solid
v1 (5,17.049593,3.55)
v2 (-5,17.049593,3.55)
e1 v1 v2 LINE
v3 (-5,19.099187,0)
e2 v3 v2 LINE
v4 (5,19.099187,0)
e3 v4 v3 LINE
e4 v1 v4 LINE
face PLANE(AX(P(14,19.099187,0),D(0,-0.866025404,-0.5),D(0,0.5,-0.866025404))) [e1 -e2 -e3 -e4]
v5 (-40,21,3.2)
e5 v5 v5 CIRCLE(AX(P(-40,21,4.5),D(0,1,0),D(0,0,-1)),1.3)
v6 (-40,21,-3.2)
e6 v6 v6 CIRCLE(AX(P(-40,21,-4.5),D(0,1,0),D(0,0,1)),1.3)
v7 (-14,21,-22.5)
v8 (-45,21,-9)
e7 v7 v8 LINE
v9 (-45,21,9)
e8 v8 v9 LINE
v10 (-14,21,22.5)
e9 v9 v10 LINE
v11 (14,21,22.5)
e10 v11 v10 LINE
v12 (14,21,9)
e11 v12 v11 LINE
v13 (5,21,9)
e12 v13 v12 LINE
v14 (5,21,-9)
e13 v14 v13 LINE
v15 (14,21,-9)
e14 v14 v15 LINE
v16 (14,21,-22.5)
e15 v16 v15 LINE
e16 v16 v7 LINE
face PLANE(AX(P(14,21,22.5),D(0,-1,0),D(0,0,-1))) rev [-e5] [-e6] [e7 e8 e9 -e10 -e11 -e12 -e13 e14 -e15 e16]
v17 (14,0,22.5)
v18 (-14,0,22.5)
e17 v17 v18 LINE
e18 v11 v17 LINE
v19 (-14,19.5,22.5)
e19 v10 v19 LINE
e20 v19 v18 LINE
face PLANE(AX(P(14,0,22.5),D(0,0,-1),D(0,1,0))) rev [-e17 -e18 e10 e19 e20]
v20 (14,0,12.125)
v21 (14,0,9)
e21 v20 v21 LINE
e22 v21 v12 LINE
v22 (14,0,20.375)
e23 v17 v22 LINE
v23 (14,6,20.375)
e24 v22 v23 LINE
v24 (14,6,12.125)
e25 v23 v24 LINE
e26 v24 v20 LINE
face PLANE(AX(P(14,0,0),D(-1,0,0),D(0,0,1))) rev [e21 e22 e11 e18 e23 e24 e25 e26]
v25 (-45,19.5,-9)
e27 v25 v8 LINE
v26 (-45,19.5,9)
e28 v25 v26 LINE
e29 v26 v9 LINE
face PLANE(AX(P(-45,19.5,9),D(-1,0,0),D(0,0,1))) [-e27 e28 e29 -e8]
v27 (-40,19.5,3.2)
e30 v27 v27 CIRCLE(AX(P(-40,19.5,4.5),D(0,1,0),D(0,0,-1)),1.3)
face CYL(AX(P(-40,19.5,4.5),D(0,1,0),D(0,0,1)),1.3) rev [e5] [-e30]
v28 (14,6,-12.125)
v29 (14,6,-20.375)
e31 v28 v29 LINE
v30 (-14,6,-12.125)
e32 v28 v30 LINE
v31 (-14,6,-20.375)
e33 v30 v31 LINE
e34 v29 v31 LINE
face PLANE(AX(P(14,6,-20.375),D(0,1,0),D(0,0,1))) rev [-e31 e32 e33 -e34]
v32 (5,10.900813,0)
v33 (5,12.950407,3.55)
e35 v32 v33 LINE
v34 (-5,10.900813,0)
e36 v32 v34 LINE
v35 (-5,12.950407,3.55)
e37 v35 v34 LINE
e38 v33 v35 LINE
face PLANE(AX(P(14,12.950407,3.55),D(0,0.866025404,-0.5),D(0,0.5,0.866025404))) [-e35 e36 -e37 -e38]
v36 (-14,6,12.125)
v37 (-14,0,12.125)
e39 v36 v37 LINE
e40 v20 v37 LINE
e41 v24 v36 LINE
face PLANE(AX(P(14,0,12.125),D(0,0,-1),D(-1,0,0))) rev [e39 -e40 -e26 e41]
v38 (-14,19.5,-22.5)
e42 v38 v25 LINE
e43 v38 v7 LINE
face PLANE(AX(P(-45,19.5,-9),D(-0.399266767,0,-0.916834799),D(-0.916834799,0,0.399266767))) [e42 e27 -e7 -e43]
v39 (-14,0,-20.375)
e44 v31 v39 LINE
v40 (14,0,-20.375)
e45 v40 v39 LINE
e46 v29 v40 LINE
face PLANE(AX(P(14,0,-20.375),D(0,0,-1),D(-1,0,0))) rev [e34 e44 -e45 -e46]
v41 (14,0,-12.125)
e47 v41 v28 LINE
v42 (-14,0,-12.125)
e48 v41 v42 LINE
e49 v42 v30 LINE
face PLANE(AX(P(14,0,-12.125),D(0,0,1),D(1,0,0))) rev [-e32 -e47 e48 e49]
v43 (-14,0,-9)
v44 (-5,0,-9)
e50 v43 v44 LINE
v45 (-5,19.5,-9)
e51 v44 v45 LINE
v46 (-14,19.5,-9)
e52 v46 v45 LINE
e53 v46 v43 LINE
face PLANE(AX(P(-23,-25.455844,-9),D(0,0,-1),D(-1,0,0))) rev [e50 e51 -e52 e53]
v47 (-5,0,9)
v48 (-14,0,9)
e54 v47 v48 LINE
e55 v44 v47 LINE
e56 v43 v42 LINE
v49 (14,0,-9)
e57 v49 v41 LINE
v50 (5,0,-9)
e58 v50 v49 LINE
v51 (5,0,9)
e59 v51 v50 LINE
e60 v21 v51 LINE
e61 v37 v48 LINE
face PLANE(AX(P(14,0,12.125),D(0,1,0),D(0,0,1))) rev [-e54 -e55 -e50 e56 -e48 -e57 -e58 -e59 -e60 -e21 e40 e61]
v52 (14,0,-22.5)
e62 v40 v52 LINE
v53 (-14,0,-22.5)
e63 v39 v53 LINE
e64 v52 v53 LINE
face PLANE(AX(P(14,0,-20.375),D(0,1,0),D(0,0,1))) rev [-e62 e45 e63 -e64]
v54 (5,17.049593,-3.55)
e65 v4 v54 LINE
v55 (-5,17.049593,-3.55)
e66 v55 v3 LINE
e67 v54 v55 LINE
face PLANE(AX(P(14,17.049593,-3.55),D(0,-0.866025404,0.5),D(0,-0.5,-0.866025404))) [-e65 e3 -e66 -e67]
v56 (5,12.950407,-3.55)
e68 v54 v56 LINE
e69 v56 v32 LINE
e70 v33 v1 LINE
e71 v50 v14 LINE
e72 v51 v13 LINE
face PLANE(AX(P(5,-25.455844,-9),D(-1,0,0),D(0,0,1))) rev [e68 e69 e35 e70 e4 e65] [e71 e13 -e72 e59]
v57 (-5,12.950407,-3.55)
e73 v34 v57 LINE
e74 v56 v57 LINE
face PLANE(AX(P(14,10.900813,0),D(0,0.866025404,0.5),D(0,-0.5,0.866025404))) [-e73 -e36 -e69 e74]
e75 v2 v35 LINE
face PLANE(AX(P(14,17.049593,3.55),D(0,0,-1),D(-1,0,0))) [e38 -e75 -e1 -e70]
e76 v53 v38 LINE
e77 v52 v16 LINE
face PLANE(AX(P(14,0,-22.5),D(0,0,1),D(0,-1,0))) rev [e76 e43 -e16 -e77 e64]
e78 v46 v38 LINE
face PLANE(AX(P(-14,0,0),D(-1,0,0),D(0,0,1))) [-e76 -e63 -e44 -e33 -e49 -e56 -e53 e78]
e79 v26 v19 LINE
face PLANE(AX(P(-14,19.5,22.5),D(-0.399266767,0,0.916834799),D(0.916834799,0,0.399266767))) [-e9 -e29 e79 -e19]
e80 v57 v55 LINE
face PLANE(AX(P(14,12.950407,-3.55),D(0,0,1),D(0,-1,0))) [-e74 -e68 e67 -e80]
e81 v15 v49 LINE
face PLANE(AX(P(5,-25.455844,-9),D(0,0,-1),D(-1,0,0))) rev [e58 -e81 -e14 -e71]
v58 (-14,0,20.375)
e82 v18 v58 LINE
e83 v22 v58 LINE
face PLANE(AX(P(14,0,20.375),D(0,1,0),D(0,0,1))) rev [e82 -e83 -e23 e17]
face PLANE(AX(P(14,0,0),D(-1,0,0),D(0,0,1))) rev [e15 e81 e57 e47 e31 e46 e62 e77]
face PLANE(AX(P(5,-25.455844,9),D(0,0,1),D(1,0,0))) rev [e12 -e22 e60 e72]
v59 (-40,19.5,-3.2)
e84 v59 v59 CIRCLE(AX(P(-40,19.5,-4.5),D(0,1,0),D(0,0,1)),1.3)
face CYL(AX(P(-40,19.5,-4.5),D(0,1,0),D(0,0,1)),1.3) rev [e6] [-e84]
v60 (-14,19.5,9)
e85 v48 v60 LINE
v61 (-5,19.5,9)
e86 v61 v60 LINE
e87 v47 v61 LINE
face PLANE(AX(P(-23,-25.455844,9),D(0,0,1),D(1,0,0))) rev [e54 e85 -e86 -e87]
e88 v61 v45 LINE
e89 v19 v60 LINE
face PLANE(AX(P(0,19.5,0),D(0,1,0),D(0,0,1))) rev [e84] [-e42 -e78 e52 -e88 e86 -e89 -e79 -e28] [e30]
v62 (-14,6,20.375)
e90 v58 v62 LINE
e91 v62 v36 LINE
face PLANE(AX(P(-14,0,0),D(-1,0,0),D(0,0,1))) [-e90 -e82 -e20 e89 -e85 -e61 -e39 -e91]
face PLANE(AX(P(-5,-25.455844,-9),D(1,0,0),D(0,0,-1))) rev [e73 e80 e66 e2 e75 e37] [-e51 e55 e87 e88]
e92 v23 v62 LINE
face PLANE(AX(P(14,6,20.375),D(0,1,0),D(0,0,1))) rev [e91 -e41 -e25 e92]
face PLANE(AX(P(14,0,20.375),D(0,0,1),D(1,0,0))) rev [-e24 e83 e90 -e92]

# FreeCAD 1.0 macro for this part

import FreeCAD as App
import Part
import Sketcher
Q = App.Units.Quantity

doc = App.newDocument("Part")
body = doc.addObject("PartDesign::Body", "Body")

# Sketch on YZ plane
sketch1 = body.newObject("Sketcher::SketchObject", "Sketch")
sketch1.AttachmentSupport = (doc.getObject("YZ_Plane"), [""])
sketch1.MapMode = "FlatFace"
sketch1.addGeometry([
    Part.LineSegment(App.Vector(21, 22.5, 0), App.Vector(0, 22.5, 0)),  # 0
    Part.LineSegment(App.Vector(0, 22.5, 0), App.Vector(0, 20.4, 0)),  # 1
    Part.LineSegment(App.Vector(0, 20.4, 0), App.Vector(6, 20.4, 0)),  # 2
    Part.LineSegment(App.Vector(6, 20.4, 0), App.Vector(6, 12.1, 0)),  # 3
    Part.LineSegment(App.Vector(6, 12.1, 0), App.Vector(0, 12.1, 0)),  # 4
    Part.LineSegment(App.Vector(0, 12.1, 0), App.Vector(0, -12.1, 0)),  # 5
    Part.LineSegment(App.Vector(0, -12.1, 0), App.Vector(6, -12.1, 0)),  # 6
    Part.LineSegment(App.Vector(6, -12.1, 0), App.Vector(6, -20.4, 0)),  # 7
    Part.LineSegment(App.Vector(6, -20.4, 0), App.Vector(0, -20.4, 0)),  # 8
    Part.LineSegment(App.Vector(0, -20.4, 0), App.Vector(0, -22.5, 0)),  # 9
    Part.LineSegment(App.Vector(0, -22.5, 0), App.Vector(21, -22.5, 0)),  # 10
    Part.LineSegment(App.Vector(21, -22.5, 0), App.Vector(21, 22.5, 0)),  # 11
    Part.LineSegment(App.Vector(10.9, 0, 0), App.Vector(13, 3.5, 0)),  # 12
    Part.LineSegment(App.Vector(13, 3.5, 0), App.Vector(17, 3.5, 0)),  # 13
    Part.LineSegment(App.Vector(17, 3.5, 0), App.Vector(19.1, 0, 0)),  # 14
    Part.LineSegment(App.Vector(19.1, 0, 0), App.Vector(17, -3.5, 0)),  # 15
    Part.LineSegment(App.Vector(17, -3.5, 0), App.Vector(13, -3.5, 0)),  # 16
    Part.LineSegment(App.Vector(13, -3.5, 0), App.Vector(10.9, 0, 0)),  # 17
], False)
sketch1.addConstraint([
    Sketcher.Constraint("Coincident", 0, 2, 1, 1),
    Sketcher.Constraint("Coincident", 1, 2, 2, 1),
    Sketcher.Constraint("Coincident", 2, 2, 3, 1),
    Sketcher.Constraint("Coincident", 3, 2, 4, 1),
    Sketcher.Constraint("Coincident", 4, 2, 5, 1),
    Sketcher.Constraint("Coincident", 5, 2, 6, 1),
    Sketcher.Constraint("Coincident", 6, 2, 7, 1),
    Sketcher.Constraint("Coincident", 7, 2, 8, 1),
    Sketcher.Constraint("Coincident", 8, 2, 9, 1),
    Sketcher.Constraint("Coincident", 9, 2, 10, 1),
    Sketcher.Constraint("Coincident", 10, 2, 11, 1),
    Sketcher.Constraint("Coincident", 11, 2, 0, 1),
    Sketcher.Constraint("Coincident", 12, 2, 13, 1),
    Sketcher.Constraint("Coincident", 13, 2, 14, 1),
    Sketcher.Constraint("Coincident", 14, 2, 15, 1),
    Sketcher.Constraint("Coincident", 15, 2, 16, 1),
    Sketcher.Constraint("Coincident", 16, 2, 17, 1),
    Sketcher.Constraint("Coincident", 17, 2, 12, 1),
    Sketcher.Constraint("Horizontal", 0),
    Sketcher.Constraint("Vertical", 1),
    Sketcher.Constraint("Horizontal", 2),
    Sketcher.Constraint("Vertical", 3),
    Sketcher.Constraint("Horizontal", 4),
    Sketcher.Constraint("Vertical", 5),
    Sketcher.Constraint("Horizontal", 6),
    Sketcher.Constraint("Vertical", 7),
    Sketcher.Constraint("Horizontal", 8),
    Sketcher.Constraint("Vertical", 9),
    Sketcher.Constraint("Horizontal", 10),
    Sketcher.Constraint("Vertical", 11),
    Sketcher.Constraint("Horizontal", 13),
    Sketcher.Constraint("Horizontal", 16),
    Sketcher.Constraint("Symmetric", 4, 2, 5, 2, -1, 1),
    Sketcher.Constraint("Symmetric", 1, 2, 8, 2, -1, 1),
    Sketcher.Constraint("Symmetric", 0, 2, 9, 2, -1),
    Sketcher.Constraint("Symmetric", 13, 2, 15, 2, -1),
    Sketcher.Constraint("PointOnObject", 14, 2, -1),
    Sketcher.Constraint("PointOnObject", 17, 2, -1),
    Sketcher.Constraint("Parallel", 12, 15),
    Sketcher.Constraint("Parallel", 14, 17),
    Sketcher.Constraint("Vertical", 3, 2, 6, 2),
    Sketcher.Constraint("DistanceX", 0, 2, 0, 1, Q("21 mm")),
    Sketcher.Constraint("DistanceX", 2, 1, 2, 2, Q("6 mm")),
    Sketcher.Constraint("DistanceY", 11, 1, 11, 2, Q("45 mm")),
    Sketcher.Constraint("Angle", 12, Q("60 deg")),
    Sketcher.Constraint("DistanceY", 3, 2, 3, 1, Q("8.25 mm")),
    Sketcher.Constraint("DistanceY", 5, 2, 5, 1, Q("24.25 mm")),
    Sketcher.Constraint("DistanceY", 15, 2, 13, 2, Q("7.1 mm")),
    Sketcher.Constraint("DistanceX", 13, 1, 13, 2, Q("4.099187 mm")),
    Sketcher.Constraint("DistanceX", -1, 1, 12, 2, Q("12.950407 mm")),
])
pad1 = body.newObject("PartDesign::Pad", "Pad")
pad1.Profile = sketch1
pad1.Length = 28
pad1.Midplane = True

# Sketch on XZ plane
sketch2 = body.newObject("Sketcher::SketchObject", "Sketch001")
sketch2.AttachmentSupport = (doc.getObject("XZ_Plane"), [""])
sketch2.MapMode = "FlatFace"
sketch2.AttachmentOffset = App.Placement(App.Vector(0, 0, -21), App.Rotation())
sketch2.addGeometry([
    Part.LineSegment(App.Vector(-23, -9, 0), App.Vector(-23, 9, 0)),  # 0
    Part.LineSegment(App.Vector(-23, 9, 0), App.Vector(-5, 9, 0)),  # 1
    Part.LineSegment(App.Vector(-5, 9, 0), App.Vector(-5, -9, 0)),  # 2
    Part.LineSegment(App.Vector(-5, -9, 0), App.Vector(-23, -9, 0)),  # 3
    Part.LineSegment(App.Vector(5, -9, 0), App.Vector(5, 9, 0)),  # 4
    Part.LineSegment(App.Vector(5, 9, 0), App.Vector(23, 9, 0)),  # 5
    Part.LineSegment(App.Vector(23, 9, 0), App.Vector(23, -9, 0)),  # 6
    Part.LineSegment(App.Vector(23, -9, 0), App.Vector(5, -9, 0)),  # 7
], False)
sketch2.addConstraint([
    Sketcher.Constraint("Coincident", 0, 2, 1, 1),
    Sketcher.Constraint("Coincident", 1, 2, 2, 1),
    Sketcher.Constraint("Coincident", 2, 2, 3, 1),
    Sketcher.Constraint("Coincident", 3, 2, 0, 1),
    Sketcher.Constraint("Coincident", 4, 2, 5, 1),
    Sketcher.Constraint("Coincident", 5, 2, 6, 1),
    Sketcher.Constraint("Coincident", 6, 2, 7, 1),
    Sketcher.Constraint("Coincident", 7, 2, 4, 1),
    Sketcher.Constraint("Vertical", 0),
    Sketcher.Constraint("Horizontal", 1),
    Sketcher.Constraint("Vertical", 2),
    Sketcher.Constraint("Horizontal", 3),
    Sketcher.Constraint("Vertical", 4),
    Sketcher.Constraint("Horizontal", 5),
    Sketcher.Constraint("Vertical", 6),
    Sketcher.Constraint("Horizontal", 7),
    Sketcher.Constraint("Symmetric", 2, 2, 4, 2, -1, 1),
    Sketcher.Constraint("Symmetric", 0, 2, 6, 2, -1, 1),
    Sketcher.Constraint("Horizontal", 1, 2, 4, 2),
    Sketcher.Constraint("Equal", 7, 0),
    Sketcher.Constraint("DistanceX", 1, 1, 1, 2, Q("18 mm")),
    Sketcher.Constraint("DistanceX", 0, 2, -1, 1, Q("23 mm")),
])
pocket1 = body.newObject("PartDesign::Pocket", "Pocket")
pocket1.Profile = sketch2
pocket1.Length = 21
pocket1.Reversed = True

# Sketch on XZ plane
sketch3 = body.newObject("Sketcher::SketchObject", "Sketch002")
sketch3.AttachmentSupport = (doc.getObject("XZ_Plane"), [""])
sketch3.MapMode = "FlatFace"
sketch3.AttachmentOffset = App.Placement(App.Vector(0, 0, -21), App.Rotation())
sketch3.addGeometry([
    Part.LineSegment(App.Vector(-5, 9, 0), App.Vector(-5, -9, 0)),  # 0
    Part.LineSegment(App.Vector(-5, -9, 0), App.Vector(-14, -22.5, 0)),  # 1
    Part.LineSegment(App.Vector(-14, -22.5, 0), App.Vector(-45, -9, 0)),  # 2
    Part.LineSegment(App.Vector(-45, -9, 0), App.Vector(-45, 9, 0)),  # 3
    Part.LineSegment(App.Vector(-45, 9, 0), App.Vector(-14, 22.5, 0)),  # 4
    Part.LineSegment(App.Vector(-14, 22.5, 0), App.Vector(-5, 9, 0)),  # 5
    Part.Circle(App.Vector(-40, 4.5, 0), App.Vector(0, 0, 1), 1.3),  # 6
    Part.Circle(App.Vector(-40, -4.5, 0), App.Vector(0, 0, 1), 1.3),  # 7
], False)
sketch3.addConstraint([
    Sketcher.Constraint("Coincident", 0, 2, 1, 1),
    Sketcher.Constraint("Coincident", 1, 2, 2, 1),
    Sketcher.Constraint("Coincident", 2, 2, 3, 1),
    Sketcher.Constraint("Coincident", 3, 2, 4, 1),
    Sketcher.Constraint("Coincident", 4, 2, 5, 1),
    Sketcher.Constraint("Coincident", 5, 2, 0, 1),
    Sketcher.Constraint("Vertical", 0),
    Sketcher.Constraint("Vertical", 3),
    Sketcher.Constraint("Equal", 6, 7),
    Sketcher.Constraint("Symmetric", 6, 3, 7, 3, -1),
    Sketcher.Constraint("Symmetric", 1, 2, 4, 2, -1),
    Sketcher.Constraint("Horizontal", 0, 2, 2, 2),
    Sketcher.Constraint("Horizontal", 3, 2, 5, 2),
    Sketcher.Constraint("Equal", 2, 4),
    Sketcher.Constraint("Diameter", 6, Q("2.6 mm")),
    Sketcher.Constraint("DistanceY", 0, 2, 0, 1, Q("18 mm")),
    Sketcher.Constraint("DistanceX", 6, 3, -1, 1, Q("40 mm")),
    Sketcher.Constraint("DistanceX", 0, 2, -1, 1, Q("5 mm")),
    Sketcher.Constraint("DistanceX", 1, 2, -1, 1, Q("14 mm")),
    Sketcher.Constraint("DistanceX", 2, 2, -1, 1, Q("45 mm")),
    Sketcher.Constraint("DistanceY", 7, 3, 6, 3, Q("9 mm")),
    Sketcher.Constraint("DistanceY", 1, 2, 7, 3, Q("18 mm")),
])
pad2 = body.newObject("PartDesign::Pad", "Pad001")
pad2.Profile = sketch3
pad2.Length = 1.5

doc.recompute()
